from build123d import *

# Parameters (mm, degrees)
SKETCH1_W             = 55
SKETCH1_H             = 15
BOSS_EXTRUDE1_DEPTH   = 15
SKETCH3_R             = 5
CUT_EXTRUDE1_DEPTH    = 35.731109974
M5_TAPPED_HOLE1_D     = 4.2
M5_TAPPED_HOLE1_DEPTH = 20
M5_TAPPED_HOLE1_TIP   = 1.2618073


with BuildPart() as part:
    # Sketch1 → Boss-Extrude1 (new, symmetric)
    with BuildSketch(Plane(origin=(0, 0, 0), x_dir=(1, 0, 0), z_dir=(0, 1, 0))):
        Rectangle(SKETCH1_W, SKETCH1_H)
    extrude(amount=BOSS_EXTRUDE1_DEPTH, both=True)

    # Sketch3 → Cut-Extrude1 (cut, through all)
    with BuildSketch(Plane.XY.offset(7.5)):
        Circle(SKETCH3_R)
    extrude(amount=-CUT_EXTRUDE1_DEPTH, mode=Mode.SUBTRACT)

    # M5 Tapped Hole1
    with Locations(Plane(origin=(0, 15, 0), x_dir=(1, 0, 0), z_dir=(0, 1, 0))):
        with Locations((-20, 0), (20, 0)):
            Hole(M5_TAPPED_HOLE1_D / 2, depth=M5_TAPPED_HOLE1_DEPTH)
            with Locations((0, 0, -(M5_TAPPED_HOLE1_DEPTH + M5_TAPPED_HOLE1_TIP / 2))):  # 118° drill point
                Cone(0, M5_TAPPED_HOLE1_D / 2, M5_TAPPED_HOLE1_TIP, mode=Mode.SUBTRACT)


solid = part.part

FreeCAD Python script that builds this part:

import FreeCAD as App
import Part
import Sketcher

V = App.Vector
Q = App.Units.Quantity

doc = App.newDocument("Part")
body = doc.addObject("PartDesign::Body", "Body")

# Sketch on XZ plane
sketch1 = body.newObject("Sketcher::SketchObject", "Sketch")
sketch1.AttachmentSupport = (doc.getObject("XZ_Plane"), [""])
sketch1.MapMode = "FlatFace"
sketch1.addGeometry([
    Part.LineSegment(V(-28, -8, 0), V(-28, 8, 0)),
    Part.LineSegment(V(-28, 8, 0), V(28, 8, 0)),
    Part.LineSegment(V(28, 8, 0), V(28, -8, 0)),
    Part.LineSegment(V(28, -8, 0), V(-28, -8, 0)),
], False)
sketch1.addConstraint([
    Sketcher.Constraint("Coincident", 0, 2, 1, 1),
    Sketcher.Constraint("Coincident", 1, 2, 2, 1),
    Sketcher.Constraint("Coincident", 2, 2, 3, 1),
    Sketcher.Constraint("Coincident", 3, 2, 0, 1),
    Sketcher.Constraint("Vertical", 0),
    Sketcher.Constraint("Horizontal", 1),
    Sketcher.Constraint("Vertical", 2),
    Sketcher.Constraint("Horizontal", 3),
    Sketcher.Constraint("Symmetric", 0, 2, 2, 2, -1, 1),
    Sketcher.Constraint("DistanceX", 1, 1, 1, 2, Q("55 mm")),
    Sketcher.Constraint("DistanceY", 0, 1, 0, 2, Q("15 mm")),
])
pad1 = body.newObject("PartDesign::Pad", "Pad")
pad1.Profile = sketch1
pad1.Length = 30
pad1.Midplane = True

# Sketch on XY plane
sketch2 = body.newObject("Sketcher::SketchObject", "Sketch001")
sketch2.AttachmentSupport = (doc.getObject("XY_Plane"), [""])
sketch2.MapMode = "FlatFace"
sketch2.AttachmentOffset = App.Placement(V(0, 0, 7.5), App.Rotation())
sketch2.addGeometry(Part.Circle(V(0, 0, 0), V(0, 0, 1), 5), False)
sketch2.addConstraint([
    Sketcher.Constraint("Coincident", 0, 3, -1, 1),
    Sketcher.Constraint("Diameter", 0, Q("10 mm")),
])
pocket1 = body.newObject("PartDesign::Pocket", "Pocket")
pocket1.Profile = sketch2
pocket1.Type = "ThroughAll"

# Sketch on XZ plane
sketch3 = body.newObject("Sketcher::SketchObject", "Sketch002")
sketch3.AttachmentSupport = (doc.getObject("XZ_Plane"), [""])
sketch3.MapMode = "FlatFace"
sketch3.AttachmentOffset = App.Placement(V(0, 0, -15), App.Rotation())
sketch3.addGeometry([
    Part.Circle(V(-20, 0, 0), V(0, 0, 1), 2.1),
    Part.Circle(V(20, 0, 0), V(0, 0, 1), 2.1),
], False)
sketch3.addConstraint([
    Sketcher.Constraint("Equal", 0, 1),
    Sketcher.Constraint("Symmetric", 0, 3, 1, 3, -1, 1),
    Sketcher.Constraint("PointOnObject", 0, 3, -1),
    Sketcher.Constraint("Diameter", 0, Q("4.2 mm")),
    Sketcher.Constraint("DistanceX", 0, 3, -1, 1, Q("20 mm")),
])
doc.recompute()
hole = body.newObject("PartDesign::Hole", "Hole")
hole.Profile = sketch3
hole.ThreadType = "None"
hole.Diameter = 4.2
hole.DepthType = "Dimension"
hole.Depth = 20
hole.DrillPoint = "Angled"
hole.DrillPointAngle = 118
hole.Reversed = True

doc.recompute()
